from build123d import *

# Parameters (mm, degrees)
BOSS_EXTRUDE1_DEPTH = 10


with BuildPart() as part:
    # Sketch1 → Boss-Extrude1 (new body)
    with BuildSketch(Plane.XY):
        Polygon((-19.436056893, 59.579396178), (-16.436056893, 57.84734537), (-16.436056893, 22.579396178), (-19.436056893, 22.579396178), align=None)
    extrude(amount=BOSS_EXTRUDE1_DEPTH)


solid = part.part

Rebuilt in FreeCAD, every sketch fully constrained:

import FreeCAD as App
import Part
import Sketcher
Q = App.Units.Quantity


def add_polygon(sketch, points):
    """Adds a closed chain of lines whose ends are joined by coincident constraints."""
    first, n = sketch.GeometryCount, len(points)
    for a, b in zip(points, points[1:] + points[:1]):
        sketch.addGeometry(Part.LineSegment(App.Vector(*a, 0), App.Vector(*b, 0)), False)
    for i in range(n):
        sketch.addConstraint(Sketcher.Constraint("Coincident", first + i, 2, first + (i + 1) % n, 1))

doc = App.newDocument("Part")
params = doc.addObject("Spreadsheet::Sheet", "Params")
for row, (alias, value) in enumerate([
    ("sketch1_width", "3 mm"),
    ("sketch1_height", "37 mm"),
    ("pad1_length", "10 mm"),
], start=1):
    params.set(f"A{row}", alias)
    params.set(f"B{row}", "=" + value)
    params.setAlias(f"B{row}", alias)

body = doc.addObject("PartDesign::Body", "Body")

# Sketch on XY plane
sketch1 = doc.addObject("Sketcher::SketchObject", "Sketch")
body.addObject(sketch1)
sketch1.AttachmentSupport = (doc.XY_Plane, [""])
sketch1.MapMode = "FlatFace"
add_polygon(sketch1, [(-16.436057, 57.847345), (-19.436057, 59.579396), (-19.436057, 22.579396), (-16.436057, 22.579396)])  # lines 0-3
sketch1.addConstraint(Sketcher.Constraint("Vertical", 1))
sketch1.addConstraint(Sketcher.Constraint("Horizontal", 2))
sketch1.addConstraint(Sketcher.Constraint("Vertical", 3))
sketch1.addConstraint(Sketcher.Constraint("DistanceX", 2, 1, 2, 2, Q("3 mm")))
sketch1.addConstraint(Sketcher.Constraint("DistanceY", 1, 2, 1, 1, Q("37 mm")))
sketch1.addConstraint(Sketcher.Constraint("Angle", 0, Q("150 deg")))
sketch1.addConstraint(Sketcher.Constraint("DistanceX", 0, 2, -1, 1, Q("19.436057 mm")))
sketch1.addConstraint(Sketcher.Constraint("DistanceY", -1, 1, 0, 2, Q("59.579396 mm")))
sketch1.setExpression("Constraints[7]", "Params.sketch1_width")
sketch1.setExpression("Constraints[8]", "Params.sketch1_height")
pad1 = doc.addObject("PartDesign::Pad", "Pad")
body.addObject(pad1)
pad1.Profile = sketch1
pad1.setExpression("Length", "Params.pad1_length")

doc.recompute()
